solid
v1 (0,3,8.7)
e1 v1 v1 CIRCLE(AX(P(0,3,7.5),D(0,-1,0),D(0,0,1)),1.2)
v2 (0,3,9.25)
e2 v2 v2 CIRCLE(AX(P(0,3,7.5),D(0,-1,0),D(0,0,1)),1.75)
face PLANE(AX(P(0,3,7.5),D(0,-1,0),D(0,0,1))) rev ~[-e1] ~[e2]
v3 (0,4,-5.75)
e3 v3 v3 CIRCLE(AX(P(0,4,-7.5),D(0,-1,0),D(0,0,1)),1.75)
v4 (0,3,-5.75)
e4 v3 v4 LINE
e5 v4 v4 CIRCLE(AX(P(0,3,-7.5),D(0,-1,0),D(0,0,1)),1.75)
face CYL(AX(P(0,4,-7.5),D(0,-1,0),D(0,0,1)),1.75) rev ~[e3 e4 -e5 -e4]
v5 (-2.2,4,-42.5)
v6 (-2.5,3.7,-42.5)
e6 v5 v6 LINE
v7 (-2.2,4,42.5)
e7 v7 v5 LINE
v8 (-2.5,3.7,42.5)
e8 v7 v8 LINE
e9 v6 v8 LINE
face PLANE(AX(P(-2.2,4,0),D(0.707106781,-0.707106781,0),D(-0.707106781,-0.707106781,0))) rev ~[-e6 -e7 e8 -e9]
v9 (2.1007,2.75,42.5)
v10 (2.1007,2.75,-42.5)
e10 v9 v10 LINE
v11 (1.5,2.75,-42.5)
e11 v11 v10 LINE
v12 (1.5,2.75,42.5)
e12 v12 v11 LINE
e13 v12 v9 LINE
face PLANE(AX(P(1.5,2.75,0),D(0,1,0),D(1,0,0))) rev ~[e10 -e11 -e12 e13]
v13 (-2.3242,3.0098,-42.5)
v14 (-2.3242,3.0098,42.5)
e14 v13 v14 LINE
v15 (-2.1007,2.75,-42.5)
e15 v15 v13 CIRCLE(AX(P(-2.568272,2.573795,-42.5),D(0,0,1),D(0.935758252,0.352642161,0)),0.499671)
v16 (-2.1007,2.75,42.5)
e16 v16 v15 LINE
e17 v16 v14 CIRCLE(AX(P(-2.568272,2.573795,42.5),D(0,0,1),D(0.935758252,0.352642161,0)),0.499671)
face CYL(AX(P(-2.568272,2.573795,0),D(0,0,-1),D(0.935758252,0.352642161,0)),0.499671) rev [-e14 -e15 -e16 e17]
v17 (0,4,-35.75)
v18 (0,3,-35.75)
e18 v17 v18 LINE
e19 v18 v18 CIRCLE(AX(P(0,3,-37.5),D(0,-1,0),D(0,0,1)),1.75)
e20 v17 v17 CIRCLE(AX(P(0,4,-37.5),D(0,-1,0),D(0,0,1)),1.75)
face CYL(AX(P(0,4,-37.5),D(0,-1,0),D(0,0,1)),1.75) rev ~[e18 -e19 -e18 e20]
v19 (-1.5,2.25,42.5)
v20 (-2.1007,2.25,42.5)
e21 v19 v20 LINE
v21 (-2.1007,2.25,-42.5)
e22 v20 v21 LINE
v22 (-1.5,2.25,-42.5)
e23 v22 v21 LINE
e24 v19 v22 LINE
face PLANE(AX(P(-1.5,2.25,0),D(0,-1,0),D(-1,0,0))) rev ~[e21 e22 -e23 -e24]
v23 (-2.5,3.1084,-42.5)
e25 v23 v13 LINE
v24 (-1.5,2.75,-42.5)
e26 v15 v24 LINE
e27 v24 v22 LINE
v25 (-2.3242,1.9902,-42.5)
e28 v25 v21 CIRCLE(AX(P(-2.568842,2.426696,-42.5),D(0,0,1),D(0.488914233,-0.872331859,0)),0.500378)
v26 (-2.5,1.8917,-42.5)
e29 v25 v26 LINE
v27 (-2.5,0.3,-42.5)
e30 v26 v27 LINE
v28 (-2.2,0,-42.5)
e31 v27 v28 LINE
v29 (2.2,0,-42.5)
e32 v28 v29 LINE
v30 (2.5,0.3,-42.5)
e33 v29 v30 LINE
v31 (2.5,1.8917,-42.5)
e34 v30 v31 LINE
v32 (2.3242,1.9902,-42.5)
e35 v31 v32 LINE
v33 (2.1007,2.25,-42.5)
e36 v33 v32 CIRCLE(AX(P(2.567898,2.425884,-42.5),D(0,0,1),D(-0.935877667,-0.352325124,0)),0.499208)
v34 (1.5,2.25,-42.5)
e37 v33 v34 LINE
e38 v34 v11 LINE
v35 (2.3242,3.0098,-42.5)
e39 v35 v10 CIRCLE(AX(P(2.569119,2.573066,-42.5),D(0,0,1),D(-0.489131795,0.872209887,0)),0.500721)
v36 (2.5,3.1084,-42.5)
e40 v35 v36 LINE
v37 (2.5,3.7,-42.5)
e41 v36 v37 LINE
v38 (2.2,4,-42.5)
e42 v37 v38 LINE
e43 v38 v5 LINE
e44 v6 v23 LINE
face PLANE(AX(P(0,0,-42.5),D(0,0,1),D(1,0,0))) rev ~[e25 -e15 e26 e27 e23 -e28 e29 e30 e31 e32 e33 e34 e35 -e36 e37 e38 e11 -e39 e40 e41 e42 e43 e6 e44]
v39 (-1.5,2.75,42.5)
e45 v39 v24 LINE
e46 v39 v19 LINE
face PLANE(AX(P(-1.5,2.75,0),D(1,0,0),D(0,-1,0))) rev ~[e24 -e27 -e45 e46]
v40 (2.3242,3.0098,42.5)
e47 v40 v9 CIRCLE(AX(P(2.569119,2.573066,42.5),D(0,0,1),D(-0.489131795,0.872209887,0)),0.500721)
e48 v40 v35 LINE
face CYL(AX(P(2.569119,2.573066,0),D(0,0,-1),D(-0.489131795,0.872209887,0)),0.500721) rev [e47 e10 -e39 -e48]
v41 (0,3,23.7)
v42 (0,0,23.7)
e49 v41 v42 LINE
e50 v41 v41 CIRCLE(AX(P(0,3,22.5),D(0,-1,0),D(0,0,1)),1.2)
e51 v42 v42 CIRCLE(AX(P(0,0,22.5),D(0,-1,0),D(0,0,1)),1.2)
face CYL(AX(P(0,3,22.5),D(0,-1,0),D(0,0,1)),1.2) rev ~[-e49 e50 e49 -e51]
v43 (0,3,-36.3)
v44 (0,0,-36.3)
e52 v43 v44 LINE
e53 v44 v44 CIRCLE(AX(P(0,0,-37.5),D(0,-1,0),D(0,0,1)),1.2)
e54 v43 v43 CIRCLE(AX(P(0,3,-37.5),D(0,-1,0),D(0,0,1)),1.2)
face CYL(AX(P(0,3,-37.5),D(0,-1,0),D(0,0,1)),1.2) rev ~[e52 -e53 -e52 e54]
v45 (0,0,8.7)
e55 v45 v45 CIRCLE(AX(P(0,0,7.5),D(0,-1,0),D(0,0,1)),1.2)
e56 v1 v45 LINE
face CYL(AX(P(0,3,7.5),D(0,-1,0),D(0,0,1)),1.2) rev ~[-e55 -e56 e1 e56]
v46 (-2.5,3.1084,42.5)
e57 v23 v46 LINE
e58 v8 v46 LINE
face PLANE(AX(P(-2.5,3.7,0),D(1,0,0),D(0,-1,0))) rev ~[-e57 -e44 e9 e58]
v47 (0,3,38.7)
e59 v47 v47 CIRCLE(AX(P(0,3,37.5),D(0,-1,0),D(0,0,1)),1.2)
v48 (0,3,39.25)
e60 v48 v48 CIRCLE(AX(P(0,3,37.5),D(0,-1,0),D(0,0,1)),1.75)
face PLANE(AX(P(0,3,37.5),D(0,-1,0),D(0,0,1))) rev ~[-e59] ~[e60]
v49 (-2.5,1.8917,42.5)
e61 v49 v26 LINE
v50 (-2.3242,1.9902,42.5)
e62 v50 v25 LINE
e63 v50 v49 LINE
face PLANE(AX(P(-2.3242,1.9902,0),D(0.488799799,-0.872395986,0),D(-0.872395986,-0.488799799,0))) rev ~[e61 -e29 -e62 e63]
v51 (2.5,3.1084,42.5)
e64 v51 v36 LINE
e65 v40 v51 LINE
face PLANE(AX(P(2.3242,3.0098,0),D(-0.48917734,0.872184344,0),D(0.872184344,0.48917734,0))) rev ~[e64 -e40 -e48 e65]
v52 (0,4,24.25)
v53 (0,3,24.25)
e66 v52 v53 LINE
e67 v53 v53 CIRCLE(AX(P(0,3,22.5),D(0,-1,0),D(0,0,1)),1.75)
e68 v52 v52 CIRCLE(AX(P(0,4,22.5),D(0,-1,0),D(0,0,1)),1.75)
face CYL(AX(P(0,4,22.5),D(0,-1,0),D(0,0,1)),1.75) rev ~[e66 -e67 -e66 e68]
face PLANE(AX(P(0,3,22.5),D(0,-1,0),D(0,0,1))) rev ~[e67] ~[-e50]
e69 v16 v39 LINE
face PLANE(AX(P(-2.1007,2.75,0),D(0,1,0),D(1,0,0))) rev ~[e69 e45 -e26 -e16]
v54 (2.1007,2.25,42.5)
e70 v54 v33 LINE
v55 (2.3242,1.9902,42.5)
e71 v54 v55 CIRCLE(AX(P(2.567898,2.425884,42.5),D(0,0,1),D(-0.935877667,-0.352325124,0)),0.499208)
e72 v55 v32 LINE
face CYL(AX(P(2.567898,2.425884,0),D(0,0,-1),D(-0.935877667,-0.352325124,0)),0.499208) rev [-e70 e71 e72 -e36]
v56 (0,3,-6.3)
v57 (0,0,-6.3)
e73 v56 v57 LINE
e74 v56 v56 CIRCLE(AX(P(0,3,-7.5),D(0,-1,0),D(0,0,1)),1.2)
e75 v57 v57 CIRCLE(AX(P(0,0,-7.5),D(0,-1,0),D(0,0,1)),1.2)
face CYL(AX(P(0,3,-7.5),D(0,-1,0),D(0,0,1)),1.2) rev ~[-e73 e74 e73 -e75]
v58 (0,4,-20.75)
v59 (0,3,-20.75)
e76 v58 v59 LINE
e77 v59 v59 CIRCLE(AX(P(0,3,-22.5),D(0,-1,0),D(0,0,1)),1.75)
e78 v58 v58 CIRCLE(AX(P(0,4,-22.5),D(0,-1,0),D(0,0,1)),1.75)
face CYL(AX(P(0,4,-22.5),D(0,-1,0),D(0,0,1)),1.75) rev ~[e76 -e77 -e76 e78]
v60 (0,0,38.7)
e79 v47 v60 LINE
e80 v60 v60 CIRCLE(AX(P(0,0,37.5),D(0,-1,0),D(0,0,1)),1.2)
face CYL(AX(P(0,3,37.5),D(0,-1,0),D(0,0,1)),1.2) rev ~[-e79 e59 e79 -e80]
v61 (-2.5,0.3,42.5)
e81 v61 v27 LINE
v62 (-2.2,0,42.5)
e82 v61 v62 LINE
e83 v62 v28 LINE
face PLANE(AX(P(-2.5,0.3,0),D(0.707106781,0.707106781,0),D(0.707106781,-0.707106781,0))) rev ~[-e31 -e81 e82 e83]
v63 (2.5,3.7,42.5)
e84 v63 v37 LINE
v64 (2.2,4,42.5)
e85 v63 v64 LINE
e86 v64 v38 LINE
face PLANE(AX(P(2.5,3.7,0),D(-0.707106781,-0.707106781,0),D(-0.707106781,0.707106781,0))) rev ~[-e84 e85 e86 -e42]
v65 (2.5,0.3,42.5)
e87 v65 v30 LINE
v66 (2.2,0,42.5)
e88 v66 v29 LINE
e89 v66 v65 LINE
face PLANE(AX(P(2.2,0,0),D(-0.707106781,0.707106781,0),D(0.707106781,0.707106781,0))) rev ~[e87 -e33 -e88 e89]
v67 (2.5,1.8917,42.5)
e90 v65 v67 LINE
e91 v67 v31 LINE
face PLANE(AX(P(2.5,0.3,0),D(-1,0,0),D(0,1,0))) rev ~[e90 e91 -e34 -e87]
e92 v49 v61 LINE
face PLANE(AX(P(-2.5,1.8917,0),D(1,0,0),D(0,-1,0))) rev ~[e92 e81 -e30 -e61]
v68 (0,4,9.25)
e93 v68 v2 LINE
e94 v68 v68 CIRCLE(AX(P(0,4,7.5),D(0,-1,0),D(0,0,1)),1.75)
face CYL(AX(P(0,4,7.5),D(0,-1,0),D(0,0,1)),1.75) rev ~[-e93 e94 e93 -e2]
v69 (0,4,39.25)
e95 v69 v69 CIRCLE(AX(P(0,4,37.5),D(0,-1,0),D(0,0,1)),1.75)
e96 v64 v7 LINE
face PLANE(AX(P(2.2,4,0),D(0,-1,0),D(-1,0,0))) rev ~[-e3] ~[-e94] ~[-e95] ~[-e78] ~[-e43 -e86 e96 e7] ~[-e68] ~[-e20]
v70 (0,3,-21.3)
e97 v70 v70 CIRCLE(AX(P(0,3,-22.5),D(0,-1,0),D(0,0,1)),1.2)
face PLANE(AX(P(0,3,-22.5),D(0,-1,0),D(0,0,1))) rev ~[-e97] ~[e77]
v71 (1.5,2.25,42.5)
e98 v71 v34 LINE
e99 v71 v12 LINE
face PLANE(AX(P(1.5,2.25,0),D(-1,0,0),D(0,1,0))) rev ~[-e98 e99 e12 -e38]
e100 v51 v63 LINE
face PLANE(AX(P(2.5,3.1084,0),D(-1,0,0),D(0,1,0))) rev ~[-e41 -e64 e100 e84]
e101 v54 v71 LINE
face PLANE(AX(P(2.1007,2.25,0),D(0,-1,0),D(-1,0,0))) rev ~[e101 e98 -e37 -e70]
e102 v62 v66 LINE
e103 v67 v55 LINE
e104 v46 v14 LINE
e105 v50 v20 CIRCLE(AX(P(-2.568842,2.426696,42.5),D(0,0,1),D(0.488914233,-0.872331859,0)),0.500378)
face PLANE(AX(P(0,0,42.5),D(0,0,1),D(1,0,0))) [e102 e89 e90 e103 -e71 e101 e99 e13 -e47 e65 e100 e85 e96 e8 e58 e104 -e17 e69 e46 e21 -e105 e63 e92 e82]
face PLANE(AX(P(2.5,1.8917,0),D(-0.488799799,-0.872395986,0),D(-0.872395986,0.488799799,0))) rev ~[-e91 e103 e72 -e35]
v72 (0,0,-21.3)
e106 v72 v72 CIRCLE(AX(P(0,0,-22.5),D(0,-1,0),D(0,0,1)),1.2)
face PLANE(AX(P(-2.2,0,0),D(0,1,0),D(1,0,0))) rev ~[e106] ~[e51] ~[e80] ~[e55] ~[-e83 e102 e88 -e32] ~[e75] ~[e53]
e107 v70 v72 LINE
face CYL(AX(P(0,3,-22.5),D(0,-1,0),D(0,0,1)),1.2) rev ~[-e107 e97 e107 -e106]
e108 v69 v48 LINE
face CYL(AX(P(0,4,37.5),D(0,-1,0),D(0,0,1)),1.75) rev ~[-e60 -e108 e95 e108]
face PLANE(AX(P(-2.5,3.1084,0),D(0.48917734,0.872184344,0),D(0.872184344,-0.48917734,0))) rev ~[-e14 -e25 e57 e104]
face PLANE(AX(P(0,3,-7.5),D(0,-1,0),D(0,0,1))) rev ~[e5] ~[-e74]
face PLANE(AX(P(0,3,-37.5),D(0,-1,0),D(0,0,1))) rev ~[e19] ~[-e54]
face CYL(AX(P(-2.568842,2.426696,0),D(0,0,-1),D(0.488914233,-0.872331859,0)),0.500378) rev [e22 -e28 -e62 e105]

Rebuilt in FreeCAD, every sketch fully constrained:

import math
import FreeCAD as App
import Part
import Sketcher
from FreeCAD import Vector
Q = App.Units.Quantity

doc = App.newDocument("Part")
body = doc.addObject("PartDesign::Body", "Body")

sketch1 = body.newObject("Sketcher::SketchObject", "Sketch")
sketch1.AttachmentSupport = (doc.getObject("XY_Plane"), [""])
sketch1.MapMode = "FlatFace"
sketch1.addGeometry(Part.LineSegment(Vector(-2.2, 4, 0), Vector(-2.5, 3.7, 0)), False)
sketch1.addGeometry(Part.LineSegment(Vector(-2.5, 3.7, 0), Vector(-2.5, 3.11, 0)), False)
sketch1.addGeometry(Part.LineSegment(Vector(-2.5, 3.11, 0), Vector(-2.32, 3.01, 0)), False)
sketch1.addGeometry(Part.ArcOfCircle(Part.Circle(Vector(-2.57, 2.57, 0), Vector(0, 0, 1), 0.5), math.radians(21), math.radians(61)), False)
sketch1.addGeometry(Part.LineSegment(Vector(-2.1, 2.75, 0), Vector(-1.5, 2.75, 0)), False)
sketch1.addGeometry(Part.LineSegment(Vector(-1.5, 2.75, 0), Vector(-1.5, 2.25, 0)), False)
sketch1.addGeometry(Part.LineSegment(Vector(-1.5, 2.25, 0), Vector(-2.1, 2.25, 0)), False)
sketch1.addGeometry(Part.ArcOfCircle(Part.Circle(Vector(-2.57, 2.43, 0), Vector(0, 0, 1), 0.5), math.radians(-61), math.radians(-21)), False)
sketch1.addGeometry(Part.LineSegment(Vector(-2.32, 1.99, 0), Vector(-2.5, 1.89, 0)), False)
sketch1.addGeometry(Part.LineSegment(Vector(-2.5, 1.89, 0), Vector(-2.5, 0.3, 0)), False)
sketch1.addGeometry(Part.LineSegment(Vector(-2.5, 0.3, 0), Vector(-2.2, 0, 0)), False)
sketch1.addGeometry(Part.LineSegment(Vector(-2.2, 0, 0), Vector(2.2, 0, 0)), False)
sketch1.addGeometry(Part.LineSegment(Vector(2.2, 0, 0), Vector(2.5, 0.3, 0)), False)
sketch1.addGeometry(Part.LineSegment(Vector(2.5, 0.3, 0), Vector(2.5, 1.89, 0)), False)
sketch1.addGeometry(Part.LineSegment(Vector(2.5, 1.89, 0), Vector(2.32, 1.99, 0)), False)
sketch1.addGeometry(Part.ArcOfCircle(Part.Circle(Vector(2.57, 2.43, 0), Vector(0, 0, 1), 0.5), math.radians(-159), math.radians(-119)), False)
sketch1.addGeometry(Part.LineSegment(Vector(2.1, 2.25, 0), Vector(1.5, 2.25, 0)), False)
sketch1.addGeometry(Part.LineSegment(Vector(1.5, 2.25, 0), Vector(1.5, 2.75, 0)), False)
sketch1.addGeometry(Part.LineSegment(Vector(1.5, 2.75, 0), Vector(2.1, 2.75, 0)), False)
sketch1.addGeometry(Part.ArcOfCircle(Part.Circle(Vector(2.57, 2.57, 0), Vector(0, 0, 1), 0.5), math.radians(119), math.radians(159)), False)
sketch1.addGeometry(Part.LineSegment(Vector(2.32, 3.01, 0), Vector(2.5, 3.11, 0)), False)
sketch1.addGeometry(Part.LineSegment(Vector(2.5, 3.11, 0), Vector(2.5, 3.7, 0)), False)
sketch1.addGeometry(Part.LineSegment(Vector(2.5, 3.7, 0), Vector(2.2, 4, 0)), False)
sketch1.addGeometry(Part.LineSegment(Vector(2.2, 4, 0), Vector(-2.2, 4, 0)), False)
sketch1.addConstraint(Sketcher.Constraint("Coincident", 0, 2, 1, 1))
sketch1.addConstraint(Sketcher.Constraint("Coincident", 1, 2, 2, 1))
sketch1.addConstraint(Sketcher.Constraint("Tangent", 2, 2, 3, 2))
sketch1.addConstraint(Sketcher.Constraint("Coincident", 3, 1, 4, 1))
sketch1.addConstraint(Sketcher.Constraint("Coincident", 4, 2, 5, 1))
sketch1.addConstraint(Sketcher.Constraint("Coincident", 5, 2, 6, 1))
sketch1.addConstraint(Sketcher.Constraint("Coincident", 6, 2, 7, 2))
sketch1.addConstraint(Sketcher.Constraint("Tangent", 7, 1, 8, 1))
sketch1.addConstraint(Sketcher.Constraint("Coincident", 8, 2, 9, 1))
sketch1.addConstraint(Sketcher.Constraint("Coincident", 9, 2, 10, 1))
sketch1.addConstraint(Sketcher.Constraint("Coincident", 10, 2, 11, 1))
sketch1.addConstraint(Sketcher.Constraint("Coincident", 11, 2, 12, 1))
sketch1.addConstraint(Sketcher.Constraint("Coincident", 12, 2, 13, 1))
sketch1.addConstraint(Sketcher.Constraint("Coincident", 13, 2, 14, 1))
sketch1.addConstraint(Sketcher.Constraint("Tangent", 14, 2, 15, 2))
sketch1.addConstraint(Sketcher.Constraint("Coincident", 15, 1, 16, 1))
sketch1.addConstraint(Sketcher.Constraint("Coincident", 16, 2, 17, 1))
sketch1.addConstraint(Sketcher.Constraint("Coincident", 17, 2, 18, 1))
sketch1.addConstraint(Sketcher.Constraint("Coincident", 18, 2, 19, 2))
sketch1.addConstraint(Sketcher.Constraint("Tangent", 19, 1, 20, 1))
sketch1.addConstraint(Sketcher.Constraint("Coincident", 20, 2, 21, 1))
sketch1.addConstraint(Sketcher.Constraint("Coincident", 21, 2, 22, 1))
sketch1.addConstraint(Sketcher.Constraint("Coincident", 22, 2, 23, 1))
sketch1.addConstraint(Sketcher.Constraint("Coincident", 23, 2, 0, 1))
sketch1.addConstraint(Sketcher.Constraint("Vertical", 1))
sketch1.addConstraint(Sketcher.Constraint("Horizontal", 4))
sketch1.addConstraint(Sketcher.Constraint("Vertical", 5))
sketch1.addConstraint(Sketcher.Constraint("Horizontal", 6))
sketch1.addConstraint(Sketcher.Constraint("Vertical", 9))
sketch1.addConstraint(Sketcher.Constraint("Horizontal", 11))
sketch1.addConstraint(Sketcher.Constraint("Vertical", 13))
sketch1.addConstraint(Sketcher.Constraint("Horizontal", 16))
sketch1.addConstraint(Sketcher.Constraint("Vertical", 17))
sketch1.addConstraint(Sketcher.Constraint("Horizontal", 18))
sketch1.addConstraint(Sketcher.Constraint("Vertical", 21))
sketch1.addConstraint(Sketcher.Constraint("Horizontal", 23))
sketch1.addConstraint(Sketcher.Constraint("Equal", 3, 7))
sketch1.addConstraint(Sketcher.Constraint("Equal", 7, 15))
sketch1.addConstraint(Sketcher.Constraint("Equal", 15, 19))
sketch1.addConstraint(Sketcher.Constraint("Symmetric", 10, 2, 11, 2, -1, 1))
sketch1.addConstraint(Sketcher.Constraint("Symmetric", 7, 3, 15, 3, -2))
sketch1.addConstraint(Sketcher.Constraint("Symmetric", 3, 3, 19, 3, -2))
sketch1.addConstraint(Sketcher.Constraint("Symmetric", 9, 2, 12, 2, -2))
sketch1.addConstraint(Sketcher.Constraint("Symmetric", 5, 2, 16, 2, -2))
sketch1.addConstraint(Sketcher.Constraint("Symmetric", 1, 2, 20, 2, -2))
sketch1.addConstraint(Sketcher.Constraint("Perpendicular", 0, 10))
sketch1.addConstraint(Sketcher.Constraint("Perpendicular", 10, 12))
sketch1.addConstraint(Sketcher.Constraint("Parallel", 2, 14))
sketch1.addConstraint(Sketcher.Constraint("Parallel", 8, 20))
sketch1.addConstraint(Sketcher.Constraint("Perpendicular", 12, 22))
sketch1.addConstraint(Sketcher.Constraint("Horizontal", 4, 2, 17, 2))
sketch1.addConstraint(Sketcher.Constraint("Horizontal", 0, 2, 21, 2))
sketch1.addConstraint(Sketcher.Constraint("Vertical", 3, 3, 7, 3))
sketch1.addConstraint(Sketcher.Constraint("Vertical", 3, 1, 6, 2))
sketch1.addConstraint(Sketcher.Constraint("Vertical", 1, 2, 8, 2))
sketch1.addConstraint(Sketcher.Constraint("Vertical", 11, 2, 22, 2))
sketch1.addConstraint(Sketcher.Constraint("Radius", 3, Q("0.5 mm")))
sketch1.addConstraint(Sketcher.Constraint("DistanceX", 11, 1, 11, 2, Q("4.4 mm")))
sketch1.addConstraint(Sketcher.Constraint("DistanceY", 5, 2, 5, 1, Q("0.5 mm")))
sketch1.addConstraint(Sketcher.Constraint("DistanceY", -1, 1, 22, 2, Q("4 mm")))
sketch1.addConstraint(Sketcher.Constraint("DistanceX", 1, 2, 4, 2, Q("1 mm")))
sketch1.addConstraint(Sketcher.Constraint("DistanceX", 5, 2, 12, 2, Q("4 mm")))
sketch1.addConstraint(Sketcher.Constraint("DistanceY", -1, 1, 3, 1, Q("2.75 mm")))
sketch1.addConstraint(Sketcher.Constraint("DistanceX", 4, 1, 4, 2, Q("0.6007 mm")))
sketch1.addConstraint(Sketcher.Constraint("DistanceY", 1, 2, 1, 1, Q("0.5916 mm")))
sketch1.addConstraint(Sketcher.Constraint("DistanceY", 7, 3, 1, 2, Q("0.682 mm")))
pad1 = body.newObject("PartDesign::Pad", "Pad")
pad1.Profile = sketch1
pad1.Length = 85
pad1.Midplane = True

sketch2 = body.newObject("Sketcher::SketchObject", "Sketch001")
sketch2.AttachmentSupport = (doc.getObject("XZ_Plane"), [""])
sketch2.MapMode = "FlatFace"
sketch2.AttachmentOffset = App.Placement(Vector(0, 0, -4), App.Rotation())
sketch2.addGeometry(Part.Circle(Vector(0, -37.5, 0), Vector(0, 0, 1), 1.2), False)
sketch2.addConstraint(Sketcher.Constraint("PointOnObject", 0, 3, -2))
sketch2.addConstraint(Sketcher.Constraint("Diameter", 0, Q("2.4 mm")))
sketch2.addConstraint(Sketcher.Constraint("DistanceY", 0, 3, -1, 1, Q("37.5 mm")))
doc.recompute()
hole = body.newObject("PartDesign::Hole", "Hole")
hole.Profile = sketch2
hole.ThreadType = "None"
hole.Diameter = 2.4
hole.DepthType = "Dimension"
hole.Depth = 4
hole.DrillPoint = "Flat"
hole.HoleCutType = "Counterbore"
hole.HoleCutDiameter = 3.5
hole.HoleCutDepth = 1
hole.Reversed = True
doc.recompute()

linearpattern = body.newObject("PartDesign::LinearPattern", "LinearPattern")
linearpattern.Originals = [hole]
linearpattern.Direction = (doc.getObject("Z_Axis"), [""])
linearpattern.Mode = "offset"
linearpattern.Offset = 15
linearpattern.Occurrences = 6
body.Tip = linearpattern

doc.recompute()
